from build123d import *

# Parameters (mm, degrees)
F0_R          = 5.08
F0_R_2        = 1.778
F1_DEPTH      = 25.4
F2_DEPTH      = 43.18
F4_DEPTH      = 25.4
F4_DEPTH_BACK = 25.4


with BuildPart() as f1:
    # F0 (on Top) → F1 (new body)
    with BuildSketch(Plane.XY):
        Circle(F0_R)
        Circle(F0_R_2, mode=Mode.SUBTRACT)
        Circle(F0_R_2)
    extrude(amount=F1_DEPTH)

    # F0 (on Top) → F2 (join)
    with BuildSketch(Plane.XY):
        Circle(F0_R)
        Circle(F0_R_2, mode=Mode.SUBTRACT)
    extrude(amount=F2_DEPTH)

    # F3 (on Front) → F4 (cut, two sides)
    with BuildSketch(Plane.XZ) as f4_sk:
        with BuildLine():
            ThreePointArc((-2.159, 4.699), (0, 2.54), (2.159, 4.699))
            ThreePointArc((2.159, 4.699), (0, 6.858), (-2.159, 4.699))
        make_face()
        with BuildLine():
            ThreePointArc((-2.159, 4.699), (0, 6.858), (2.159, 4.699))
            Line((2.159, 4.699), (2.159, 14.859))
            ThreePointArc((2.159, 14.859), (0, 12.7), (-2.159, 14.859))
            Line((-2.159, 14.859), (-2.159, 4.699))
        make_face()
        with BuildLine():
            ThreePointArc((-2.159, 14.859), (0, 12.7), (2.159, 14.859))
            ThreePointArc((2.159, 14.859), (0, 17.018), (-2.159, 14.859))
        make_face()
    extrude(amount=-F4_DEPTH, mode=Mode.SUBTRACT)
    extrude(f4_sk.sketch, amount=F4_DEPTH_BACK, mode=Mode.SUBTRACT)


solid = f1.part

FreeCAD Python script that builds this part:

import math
import FreeCAD as App
import Part
import Sketcher

V = App.Vector
Q = App.Units.Quantity

doc = App.newDocument("Part")
body = doc.addObject("PartDesign::Body", "Body")

sketch1 = doc.addObject("Sketcher::SketchObject", "Sketch")
body.addObject(sketch1)
sketch1.AttachmentSupport = (doc.XY_Plane, [""])
sketch1.MapMode = "FlatFace"
sketch1.addGeometry(Part.Circle(V(0, 0, 0), V(0, 0, 1), 5.08), False)
sketch1.addConstraint([
    Sketcher.Constraint("Coincident", 0, 3, -1, 1),
    Sketcher.Constraint("Diameter", 0, Q("0.4 in")),
])
pad1 = doc.addObject("PartDesign::Pad", "Pad")
body.addObject(pad1)
pad1.Profile = sketch1
pad1.Length = Q("1 in")

sketch2 = doc.addObject("Sketcher::SketchObject", "Sketch001")
body.addObject(sketch2)
sketch2.AttachmentSupport = (doc.XY_Plane, [""])
sketch2.MapMode = "FlatFace"
sketch2.addGeometry([
    Part.Circle(V(0, 0, 0), V(0, 0, 1), 5.08),
    Part.Circle(V(0, 0, 0), V(0, 0, 1), 1.778),
], False)
sketch2.addConstraint([
    Sketcher.Constraint("Coincident", 0, 3, -1, 1),
    Sketcher.Constraint("Coincident", 1, 3, -1, 1),
    Sketcher.Constraint("Diameter", 0, Q("0.4 in")),
    Sketcher.Constraint("Diameter", 1, Q("0.14 in")),
])
pad2 = doc.addObject("PartDesign::Pad", "Pad001")
body.addObject(pad2)
pad2.Profile = sketch2
pad2.Length = Q("1.7 in")

sketch3 = doc.addObject("Sketcher::SketchObject", "Sketch002")
body.addObject(sketch3)
sketch3.AttachmentSupport = (doc.XZ_Plane, [""])
sketch3.MapMode = "FlatFace"
sketch3.addGeometry([
    Part.ArcOfCircle(Part.Circle(V(0, 4.699, 0), V(0, 0, 1), 2.159), math.radians(180), math.radians(360)),
    Part.LineSegment(V(2.159, 4.699, 0), V(2.159, 14.859, 0)),
    Part.ArcOfCircle(Part.Circle(V(0, 14.859, 0), V(0, 0, 1), 2.159), math.radians(0), math.radians(180)),
    Part.LineSegment(V(-2.159, 14.859, 0), V(-2.159, 4.699, 0)),
], False)
sketch3.addConstraint([
    Sketcher.Constraint("Tangent", 0, 2, 1, 1),
    Sketcher.Constraint("Tangent", 1, 2, 2, 1),
    Sketcher.Constraint("Tangent", 2, 2, 3, 1),
    Sketcher.Constraint("Tangent", 3, 2, 0, 1),
    Sketcher.Constraint("Vertical", 1),
    Sketcher.Constraint("Vertical", 3),
    Sketcher.Constraint("PointOnObject", 0, 3, -2),
    Sketcher.Constraint("DistanceY", 1, 1, 1, 2, Q("0.4 in")),
    Sketcher.Constraint("Radius", 0, Q("0.085 in")),
    Sketcher.Constraint("DistanceY", -1, 1, 0, 3, Q("0.185 in")),
])
pocket1 = doc.addObject("PartDesign::Pocket", "Pocket")
body.addObject(pocket1)
pocket1.Profile = sketch3
pocket1.Type = "ThroughAll"
pocket1.Midplane = True

doc.recompute()
